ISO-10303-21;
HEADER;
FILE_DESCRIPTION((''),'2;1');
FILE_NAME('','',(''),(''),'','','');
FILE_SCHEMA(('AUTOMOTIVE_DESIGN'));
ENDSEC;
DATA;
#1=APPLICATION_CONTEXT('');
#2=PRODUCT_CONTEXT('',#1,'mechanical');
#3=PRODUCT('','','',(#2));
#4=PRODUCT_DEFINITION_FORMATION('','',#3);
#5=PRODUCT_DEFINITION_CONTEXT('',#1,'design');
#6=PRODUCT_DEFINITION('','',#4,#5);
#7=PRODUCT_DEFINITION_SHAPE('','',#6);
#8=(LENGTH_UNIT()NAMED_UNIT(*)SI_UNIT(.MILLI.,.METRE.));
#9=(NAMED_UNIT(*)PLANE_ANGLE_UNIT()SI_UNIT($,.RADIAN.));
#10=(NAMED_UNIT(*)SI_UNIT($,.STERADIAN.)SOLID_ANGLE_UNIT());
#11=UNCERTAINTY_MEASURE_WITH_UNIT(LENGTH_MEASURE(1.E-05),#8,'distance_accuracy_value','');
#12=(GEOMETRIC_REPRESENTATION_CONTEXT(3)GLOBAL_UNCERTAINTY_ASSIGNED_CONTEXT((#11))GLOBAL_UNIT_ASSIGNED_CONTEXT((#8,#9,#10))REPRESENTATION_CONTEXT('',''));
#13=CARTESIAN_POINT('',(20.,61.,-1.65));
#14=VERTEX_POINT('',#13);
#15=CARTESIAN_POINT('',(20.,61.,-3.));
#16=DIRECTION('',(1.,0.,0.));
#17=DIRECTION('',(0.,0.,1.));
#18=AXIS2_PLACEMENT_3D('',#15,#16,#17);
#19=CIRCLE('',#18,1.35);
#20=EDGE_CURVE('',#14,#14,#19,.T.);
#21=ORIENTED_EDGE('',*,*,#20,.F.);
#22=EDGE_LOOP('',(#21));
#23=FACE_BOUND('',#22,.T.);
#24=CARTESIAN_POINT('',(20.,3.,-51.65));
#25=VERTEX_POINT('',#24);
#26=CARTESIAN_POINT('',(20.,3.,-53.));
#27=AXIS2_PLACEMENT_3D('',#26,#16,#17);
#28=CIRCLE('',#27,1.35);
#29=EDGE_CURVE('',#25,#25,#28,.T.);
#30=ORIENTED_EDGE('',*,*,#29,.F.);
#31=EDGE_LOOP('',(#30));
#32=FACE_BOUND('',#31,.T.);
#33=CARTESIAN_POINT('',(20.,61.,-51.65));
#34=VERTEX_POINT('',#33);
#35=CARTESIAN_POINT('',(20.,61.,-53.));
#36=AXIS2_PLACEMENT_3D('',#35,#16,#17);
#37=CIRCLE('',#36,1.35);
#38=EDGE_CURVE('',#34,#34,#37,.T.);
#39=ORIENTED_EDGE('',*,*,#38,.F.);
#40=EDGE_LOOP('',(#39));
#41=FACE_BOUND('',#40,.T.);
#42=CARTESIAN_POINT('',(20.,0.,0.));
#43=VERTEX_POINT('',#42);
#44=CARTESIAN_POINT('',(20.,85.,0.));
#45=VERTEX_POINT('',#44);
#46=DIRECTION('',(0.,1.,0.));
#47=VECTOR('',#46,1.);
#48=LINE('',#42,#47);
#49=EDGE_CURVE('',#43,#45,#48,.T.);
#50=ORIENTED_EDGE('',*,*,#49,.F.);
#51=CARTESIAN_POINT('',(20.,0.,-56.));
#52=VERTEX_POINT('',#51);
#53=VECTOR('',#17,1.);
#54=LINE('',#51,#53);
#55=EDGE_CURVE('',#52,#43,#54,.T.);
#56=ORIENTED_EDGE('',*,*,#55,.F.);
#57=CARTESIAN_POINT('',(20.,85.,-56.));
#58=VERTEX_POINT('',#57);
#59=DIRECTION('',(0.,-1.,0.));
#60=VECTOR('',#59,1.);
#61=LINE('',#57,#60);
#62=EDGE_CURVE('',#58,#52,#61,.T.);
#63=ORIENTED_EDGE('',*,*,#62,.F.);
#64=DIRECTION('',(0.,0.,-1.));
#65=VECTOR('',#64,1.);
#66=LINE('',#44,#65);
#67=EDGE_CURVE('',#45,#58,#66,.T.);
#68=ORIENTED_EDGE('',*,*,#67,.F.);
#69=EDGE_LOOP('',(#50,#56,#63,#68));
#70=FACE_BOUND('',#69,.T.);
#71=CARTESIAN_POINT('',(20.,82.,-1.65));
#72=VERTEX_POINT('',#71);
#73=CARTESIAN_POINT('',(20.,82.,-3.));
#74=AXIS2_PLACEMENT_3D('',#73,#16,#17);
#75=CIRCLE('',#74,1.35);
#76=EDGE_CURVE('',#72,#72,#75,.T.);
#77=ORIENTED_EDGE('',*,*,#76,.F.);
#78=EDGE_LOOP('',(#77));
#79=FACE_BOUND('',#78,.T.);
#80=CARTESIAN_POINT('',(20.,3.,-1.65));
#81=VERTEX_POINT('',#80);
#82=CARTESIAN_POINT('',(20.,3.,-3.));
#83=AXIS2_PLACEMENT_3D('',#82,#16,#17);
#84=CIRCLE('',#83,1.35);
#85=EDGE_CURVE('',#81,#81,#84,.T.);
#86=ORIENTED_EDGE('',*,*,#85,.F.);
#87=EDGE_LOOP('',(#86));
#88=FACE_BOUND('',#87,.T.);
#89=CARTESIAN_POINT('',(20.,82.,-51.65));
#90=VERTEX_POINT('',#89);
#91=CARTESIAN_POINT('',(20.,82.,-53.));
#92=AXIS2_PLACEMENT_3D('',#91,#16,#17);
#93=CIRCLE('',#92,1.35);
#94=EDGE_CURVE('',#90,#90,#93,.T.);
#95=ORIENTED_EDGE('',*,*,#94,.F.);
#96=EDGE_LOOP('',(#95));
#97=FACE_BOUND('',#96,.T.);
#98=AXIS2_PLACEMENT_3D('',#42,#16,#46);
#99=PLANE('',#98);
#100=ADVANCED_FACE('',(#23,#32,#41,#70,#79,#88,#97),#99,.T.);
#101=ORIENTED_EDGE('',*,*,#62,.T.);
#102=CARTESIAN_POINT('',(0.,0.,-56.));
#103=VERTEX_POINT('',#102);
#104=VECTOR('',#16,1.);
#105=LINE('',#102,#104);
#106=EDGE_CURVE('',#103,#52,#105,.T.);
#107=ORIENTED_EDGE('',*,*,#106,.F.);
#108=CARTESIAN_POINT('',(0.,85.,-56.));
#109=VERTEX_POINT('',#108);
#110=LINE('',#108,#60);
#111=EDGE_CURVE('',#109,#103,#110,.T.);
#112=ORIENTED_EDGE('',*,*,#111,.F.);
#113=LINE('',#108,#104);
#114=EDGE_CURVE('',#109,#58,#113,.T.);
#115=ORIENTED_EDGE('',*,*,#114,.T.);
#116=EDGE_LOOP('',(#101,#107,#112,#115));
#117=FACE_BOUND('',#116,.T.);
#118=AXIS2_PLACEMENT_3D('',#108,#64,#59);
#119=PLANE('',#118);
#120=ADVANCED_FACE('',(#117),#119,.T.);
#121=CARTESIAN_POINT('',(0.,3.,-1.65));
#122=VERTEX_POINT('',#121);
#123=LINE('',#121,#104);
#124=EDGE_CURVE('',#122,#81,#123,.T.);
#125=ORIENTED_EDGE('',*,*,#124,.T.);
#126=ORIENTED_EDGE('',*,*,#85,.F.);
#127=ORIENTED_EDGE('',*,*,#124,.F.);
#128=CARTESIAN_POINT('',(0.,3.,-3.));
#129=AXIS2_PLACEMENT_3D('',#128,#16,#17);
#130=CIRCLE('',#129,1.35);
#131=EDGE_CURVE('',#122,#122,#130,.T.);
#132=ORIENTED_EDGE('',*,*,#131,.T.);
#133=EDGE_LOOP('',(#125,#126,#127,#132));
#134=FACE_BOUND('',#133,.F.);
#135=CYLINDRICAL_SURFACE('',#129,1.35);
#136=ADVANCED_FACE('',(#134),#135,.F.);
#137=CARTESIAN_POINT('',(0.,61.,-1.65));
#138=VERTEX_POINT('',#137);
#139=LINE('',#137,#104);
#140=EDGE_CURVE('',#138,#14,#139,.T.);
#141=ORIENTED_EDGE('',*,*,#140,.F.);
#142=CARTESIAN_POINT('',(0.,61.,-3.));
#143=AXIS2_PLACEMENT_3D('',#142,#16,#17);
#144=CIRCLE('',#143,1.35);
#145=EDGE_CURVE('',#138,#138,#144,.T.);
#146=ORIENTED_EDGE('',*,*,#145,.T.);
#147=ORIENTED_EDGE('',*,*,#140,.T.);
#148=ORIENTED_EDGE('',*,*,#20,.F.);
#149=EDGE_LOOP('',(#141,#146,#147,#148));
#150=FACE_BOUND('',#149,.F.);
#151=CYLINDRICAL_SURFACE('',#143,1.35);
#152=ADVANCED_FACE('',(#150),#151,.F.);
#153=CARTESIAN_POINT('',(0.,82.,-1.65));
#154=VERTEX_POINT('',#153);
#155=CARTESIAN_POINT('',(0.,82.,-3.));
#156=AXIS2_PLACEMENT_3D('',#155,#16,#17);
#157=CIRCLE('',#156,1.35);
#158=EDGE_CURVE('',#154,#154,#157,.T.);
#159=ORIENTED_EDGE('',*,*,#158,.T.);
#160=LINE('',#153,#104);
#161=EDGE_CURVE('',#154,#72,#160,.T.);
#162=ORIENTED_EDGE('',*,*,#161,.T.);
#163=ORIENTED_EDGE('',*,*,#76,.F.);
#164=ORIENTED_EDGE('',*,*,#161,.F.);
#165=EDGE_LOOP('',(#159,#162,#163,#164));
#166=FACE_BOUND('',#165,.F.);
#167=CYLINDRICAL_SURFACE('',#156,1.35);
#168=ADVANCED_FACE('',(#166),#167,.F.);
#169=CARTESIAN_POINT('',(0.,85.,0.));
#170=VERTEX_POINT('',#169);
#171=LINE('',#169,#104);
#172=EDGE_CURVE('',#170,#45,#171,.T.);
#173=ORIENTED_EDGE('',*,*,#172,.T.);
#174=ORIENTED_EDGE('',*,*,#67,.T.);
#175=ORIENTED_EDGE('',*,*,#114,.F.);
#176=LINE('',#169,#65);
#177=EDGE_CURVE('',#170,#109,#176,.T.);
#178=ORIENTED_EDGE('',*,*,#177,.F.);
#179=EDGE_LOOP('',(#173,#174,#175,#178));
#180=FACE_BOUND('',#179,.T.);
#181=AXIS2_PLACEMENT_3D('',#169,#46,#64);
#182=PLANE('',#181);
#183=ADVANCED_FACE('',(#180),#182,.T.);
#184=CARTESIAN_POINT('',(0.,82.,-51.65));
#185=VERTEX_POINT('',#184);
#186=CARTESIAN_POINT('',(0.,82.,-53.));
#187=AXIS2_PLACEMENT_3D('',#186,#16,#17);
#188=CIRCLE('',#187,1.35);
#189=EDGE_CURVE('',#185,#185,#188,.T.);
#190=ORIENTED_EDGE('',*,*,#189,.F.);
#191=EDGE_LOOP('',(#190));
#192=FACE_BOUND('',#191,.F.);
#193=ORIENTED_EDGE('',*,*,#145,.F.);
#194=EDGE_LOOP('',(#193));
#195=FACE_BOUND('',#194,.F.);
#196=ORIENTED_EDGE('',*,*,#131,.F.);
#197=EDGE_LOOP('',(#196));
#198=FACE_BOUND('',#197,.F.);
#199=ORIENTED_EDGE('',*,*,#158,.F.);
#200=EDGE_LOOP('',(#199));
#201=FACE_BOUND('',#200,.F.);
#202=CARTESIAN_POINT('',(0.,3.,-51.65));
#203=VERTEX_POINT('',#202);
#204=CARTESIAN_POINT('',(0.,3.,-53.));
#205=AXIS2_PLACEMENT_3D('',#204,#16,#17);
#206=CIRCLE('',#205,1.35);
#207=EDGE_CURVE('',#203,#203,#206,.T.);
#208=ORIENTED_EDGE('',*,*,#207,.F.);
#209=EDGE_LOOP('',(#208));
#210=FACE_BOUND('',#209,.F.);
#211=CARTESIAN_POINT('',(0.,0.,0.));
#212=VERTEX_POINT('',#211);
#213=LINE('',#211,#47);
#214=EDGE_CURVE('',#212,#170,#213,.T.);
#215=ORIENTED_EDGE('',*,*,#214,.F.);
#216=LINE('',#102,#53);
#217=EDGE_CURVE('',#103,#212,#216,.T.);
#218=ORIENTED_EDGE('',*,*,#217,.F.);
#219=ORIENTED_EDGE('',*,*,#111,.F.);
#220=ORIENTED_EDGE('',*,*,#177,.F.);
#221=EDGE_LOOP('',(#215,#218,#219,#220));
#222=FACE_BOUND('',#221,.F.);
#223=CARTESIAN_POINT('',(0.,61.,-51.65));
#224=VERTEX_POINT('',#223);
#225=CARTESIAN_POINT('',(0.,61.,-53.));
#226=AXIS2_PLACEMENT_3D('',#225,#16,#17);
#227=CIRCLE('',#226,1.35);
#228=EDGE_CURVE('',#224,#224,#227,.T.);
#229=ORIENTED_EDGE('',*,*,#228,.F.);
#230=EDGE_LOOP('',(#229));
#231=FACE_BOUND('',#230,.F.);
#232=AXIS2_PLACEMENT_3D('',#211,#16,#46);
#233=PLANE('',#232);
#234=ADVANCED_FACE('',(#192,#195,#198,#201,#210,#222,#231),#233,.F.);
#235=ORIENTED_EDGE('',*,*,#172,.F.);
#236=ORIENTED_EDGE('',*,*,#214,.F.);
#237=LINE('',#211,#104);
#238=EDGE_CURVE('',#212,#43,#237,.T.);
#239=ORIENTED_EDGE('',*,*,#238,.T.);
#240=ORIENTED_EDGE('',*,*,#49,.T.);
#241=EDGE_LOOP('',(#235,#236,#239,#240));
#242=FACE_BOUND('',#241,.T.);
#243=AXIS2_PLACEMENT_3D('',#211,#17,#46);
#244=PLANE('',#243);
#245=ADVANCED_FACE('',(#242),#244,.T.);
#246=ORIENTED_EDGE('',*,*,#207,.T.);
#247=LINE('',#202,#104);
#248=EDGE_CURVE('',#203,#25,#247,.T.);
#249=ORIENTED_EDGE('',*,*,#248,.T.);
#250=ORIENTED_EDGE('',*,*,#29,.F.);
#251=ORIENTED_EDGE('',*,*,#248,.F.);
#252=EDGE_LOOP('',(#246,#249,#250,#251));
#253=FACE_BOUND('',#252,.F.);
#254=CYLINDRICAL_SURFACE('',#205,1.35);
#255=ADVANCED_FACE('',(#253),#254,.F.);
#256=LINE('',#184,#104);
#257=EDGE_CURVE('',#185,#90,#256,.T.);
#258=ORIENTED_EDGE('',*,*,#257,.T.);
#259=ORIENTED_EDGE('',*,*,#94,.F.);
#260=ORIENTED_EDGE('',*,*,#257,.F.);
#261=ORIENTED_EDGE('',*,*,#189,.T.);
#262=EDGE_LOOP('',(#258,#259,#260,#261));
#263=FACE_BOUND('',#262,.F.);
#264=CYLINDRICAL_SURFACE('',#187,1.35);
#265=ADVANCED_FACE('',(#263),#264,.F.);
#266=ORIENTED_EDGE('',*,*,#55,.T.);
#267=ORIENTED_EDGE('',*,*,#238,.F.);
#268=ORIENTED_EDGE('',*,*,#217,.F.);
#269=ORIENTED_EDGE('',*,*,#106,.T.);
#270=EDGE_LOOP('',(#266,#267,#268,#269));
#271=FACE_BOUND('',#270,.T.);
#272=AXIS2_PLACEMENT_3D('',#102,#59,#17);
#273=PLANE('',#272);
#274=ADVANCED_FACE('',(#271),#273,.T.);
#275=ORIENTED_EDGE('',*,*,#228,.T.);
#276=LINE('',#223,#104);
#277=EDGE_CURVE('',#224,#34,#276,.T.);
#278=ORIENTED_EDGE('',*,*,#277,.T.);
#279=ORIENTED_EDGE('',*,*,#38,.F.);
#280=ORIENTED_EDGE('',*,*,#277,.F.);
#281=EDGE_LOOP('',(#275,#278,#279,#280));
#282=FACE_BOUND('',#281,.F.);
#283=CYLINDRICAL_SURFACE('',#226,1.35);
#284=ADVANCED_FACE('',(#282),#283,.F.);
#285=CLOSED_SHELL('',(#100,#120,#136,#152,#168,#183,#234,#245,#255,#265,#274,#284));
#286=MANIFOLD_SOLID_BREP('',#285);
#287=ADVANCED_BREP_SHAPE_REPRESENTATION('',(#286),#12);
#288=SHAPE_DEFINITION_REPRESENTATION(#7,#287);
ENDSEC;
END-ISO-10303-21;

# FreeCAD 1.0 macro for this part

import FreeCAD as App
import Part
import Sketcher

doc = App.newDocument("Part")
body = doc.addObject("PartDesign::Body", "Body")

# Sketch on YZ plane
sketch1 = body.newObject("Sketcher::SketchObject", "Sketch")
sketch1.AttachmentSupport = (doc.getObject("YZ_Plane"), [""])
sketch1.MapMode = "FlatFace"
sketch1.addGeometry([
    Part.LineSegment(App.Vector(85, 0, 0), App.Vector(0, 0, 0)),
    Part.LineSegment(App.Vector(0, 0, 0), App.Vector(0, -56, 0)),
    Part.LineSegment(App.Vector(0, -56, 0), App.Vector(85, -56, 0)),
    Part.LineSegment(App.Vector(85, -56, 0), App.Vector(85, 0, 0)),
], False)
sketch1.addConstraint([
    Sketcher.Constraint("Coincident", 0, 2, 1, 1),
    Sketcher.Constraint("Coincident", 1, 2, 2, 1),
    Sketcher.Constraint("Coincident", 2, 2, 3, 1),
    Sketcher.Constraint("Coincident", 3, 2, 0, 1),
    Sketcher.Constraint("Horizontal", 0),
    Sketcher.Constraint("Vertical", 1),
    Sketcher.Constraint("Horizontal", 2),
    Sketcher.Constraint("Vertical", 3),
    Sketcher.Constraint("Coincident", 0, 2, -1, 1),
    Sketcher.Constraint("DistanceX", 0, 2, 0, 1, 85.0),
    Sketcher.Constraint("DistanceY", 1, 2, 1, 1, 56.0),
])
pad1 = body.newObject("PartDesign::Pad", "Pad")
pad1.Profile = sketch1
pad1.Length = 20

# Sketch on YZ plane
sketch2 = body.newObject("Sketcher::SketchObject", "Sketch001")
sketch2.AttachmentSupport = (doc.getObject("YZ_Plane"), [""])
sketch2.MapMode = "FlatFace"
sketch2.addGeometry(Part.Circle(App.Vector(3, -53, 0), App.Vector(0, 0, 1), 1.4), False)
sketch2.addConstraint([
    Sketcher.Constraint("Diameter", 0, 2.7),
    Sketcher.Constraint("DistanceX", -1, 1, 0, 3, 3.0),
    Sketcher.Constraint("DistanceY", 0, 3, -1, 1, 53.0),
])
doc.recompute()
hole = body.newObject("PartDesign::Hole", "Hole")
hole.Profile = sketch2
hole.ThreadType = "None"
hole.Diameter = 2.7
hole.DepthType = "Dimension"
hole.Depth = 20
hole.DrillPoint = "Flat"
hole.Reversed = True

# Sketch on YZ plane
sketch3 = body.newObject("Sketcher::SketchObject", "Sketch002")
sketch3.AttachmentSupport = (doc.getObject("YZ_Plane"), [""])
sketch3.MapMode = "FlatFace"
sketch3.addGeometry(Part.Circle(App.Vector(3, -3, 0), App.Vector(0, 0, 1), 1.4), False)
sketch3.addConstraint([
    Sketcher.Constraint("Diameter", 0, 2.7),
    Sketcher.Constraint("DistanceX", -1, 1, 0, 3, 3.0),
    Sketcher.Constraint("DistanceY", 0, 3, -1, 1, 3.0),
])
doc.recompute()
hole2 = body.newObject("PartDesign::Hole", "Hole001")
hole2.Profile = sketch3
hole2.ThreadType = "None"
hole2.Diameter = 2.7
hole2.DepthType = "Dimension"
hole2.Depth = 20
hole2.DrillPoint = "Flat"
hole2.Reversed = True

# Sketch on YZ plane
sketch4 = body.newObject("Sketcher::SketchObject", "Sketch003")
sketch4.AttachmentSupport = (doc.getObject("YZ_Plane"), [""])
sketch4.MapMode = "FlatFace"
sketch4.addGeometry(Part.Circle(App.Vector(82, -3, 0), App.Vector(0, 0, 1), 1.4), False)
sketch4.addConstraint([
    Sketcher.Constraint("Diameter", 0, 2.7),
    Sketcher.Constraint("DistanceX", -1, 1, 0, 3, 82.0),
    Sketcher.Constraint("DistanceY", 0, 3, -1, 1, 3.0),
])
doc.recompute()
hole3 = body.newObject("PartDesign::Hole", "Hole002")
hole3.Profile = sketch4
hole3.ThreadType = "None"
hole3.Diameter = 2.7
hole3.DepthType = "Dimension"
hole3.Depth = 20
hole3.DrillPoint = "Flat"
hole3.Reversed = True

# Sketch on YZ plane
sketch5 = body.newObject("Sketcher::SketchObject", "Sketch004")
sketch5.AttachmentSupport = (doc.getObject("YZ_Plane"), [""])
sketch5.MapMode = "FlatFace"
sketch5.addGeometry(Part.Circle(App.Vector(82, -53, 0), App.Vector(0, 0, 1), 1.4), False)
sketch5.addConstraint([
    Sketcher.Constraint("Diameter", 0, 2.7),
    Sketcher.Constraint("DistanceX", -1, 1, 0, 3, 82.0),
    Sketcher.Constraint("DistanceY", 0, 3, -1, 1, 53.0),
])
doc.recompute()
hole4 = body.newObject("PartDesign::Hole", "Hole003")
hole4.Profile = sketch5
hole4.ThreadType = "None"
hole4.Diameter = 2.7
hole4.DepthType = "Dimension"
hole4.Depth = 20
hole4.DrillPoint = "Flat"
hole4.Reversed = True

# Sketch on YZ plane
sketch6 = body.newObject("Sketcher::SketchObject", "Sketch005")
sketch6.AttachmentSupport = (doc.getObject("YZ_Plane"), [""])
sketch6.MapMode = "FlatFace"
sketch6.addGeometry(Part.Circle(App.Vector(61, -53, 0), App.Vector(0, 0, 1), 1.4), False)
sketch6.addConstraint([
    Sketcher.Constraint("Diameter", 0, 2.7),
    Sketcher.Constraint("DistanceX", -1, 1, 0, 3, 61.0),
    Sketcher.Constraint("DistanceY", 0, 3, -1, 1, 53.0),
])
doc.recompute()
hole5 = body.newObject("PartDesign::Hole", "Hole004")
hole5.Profile = sketch6
hole5.ThreadType = "None"
hole5.Diameter = 2.7
hole5.DepthType = "Dimension"
hole5.Depth = 20
hole5.DrillPoint = "Flat"
hole5.Reversed = True

# Sketch on YZ plane
sketch7 = body.newObject("Sketcher::SketchObject", "Sketch006")
sketch7.AttachmentSupport = (doc.getObject("YZ_Plane"), [""])
sketch7.MapMode = "FlatFace"
sketch7.addGeometry(Part.Circle(App.Vector(61, -3, 0), App.Vector(0, 0, 1), 1.4), False)
sketch7.addConstraint([
    Sketcher.Constraint("Diameter", 0, 2.7),
    Sketcher.Constraint("DistanceX", -1, 1, 0, 3, 61.0),
    Sketcher.Constraint("DistanceY", 0, 3, -1, 1, 3.0),
])
doc.recompute()
hole6 = body.newObject("PartDesign::Hole", "Hole005")
hole6.Profile = sketch7
hole6.ThreadType = "None"
hole6.Diameter = 2.7
hole6.DepthType = "Dimension"
hole6.Depth = 20
hole6.DrillPoint = "Flat"
hole6.Reversed = True

doc.recompute()
